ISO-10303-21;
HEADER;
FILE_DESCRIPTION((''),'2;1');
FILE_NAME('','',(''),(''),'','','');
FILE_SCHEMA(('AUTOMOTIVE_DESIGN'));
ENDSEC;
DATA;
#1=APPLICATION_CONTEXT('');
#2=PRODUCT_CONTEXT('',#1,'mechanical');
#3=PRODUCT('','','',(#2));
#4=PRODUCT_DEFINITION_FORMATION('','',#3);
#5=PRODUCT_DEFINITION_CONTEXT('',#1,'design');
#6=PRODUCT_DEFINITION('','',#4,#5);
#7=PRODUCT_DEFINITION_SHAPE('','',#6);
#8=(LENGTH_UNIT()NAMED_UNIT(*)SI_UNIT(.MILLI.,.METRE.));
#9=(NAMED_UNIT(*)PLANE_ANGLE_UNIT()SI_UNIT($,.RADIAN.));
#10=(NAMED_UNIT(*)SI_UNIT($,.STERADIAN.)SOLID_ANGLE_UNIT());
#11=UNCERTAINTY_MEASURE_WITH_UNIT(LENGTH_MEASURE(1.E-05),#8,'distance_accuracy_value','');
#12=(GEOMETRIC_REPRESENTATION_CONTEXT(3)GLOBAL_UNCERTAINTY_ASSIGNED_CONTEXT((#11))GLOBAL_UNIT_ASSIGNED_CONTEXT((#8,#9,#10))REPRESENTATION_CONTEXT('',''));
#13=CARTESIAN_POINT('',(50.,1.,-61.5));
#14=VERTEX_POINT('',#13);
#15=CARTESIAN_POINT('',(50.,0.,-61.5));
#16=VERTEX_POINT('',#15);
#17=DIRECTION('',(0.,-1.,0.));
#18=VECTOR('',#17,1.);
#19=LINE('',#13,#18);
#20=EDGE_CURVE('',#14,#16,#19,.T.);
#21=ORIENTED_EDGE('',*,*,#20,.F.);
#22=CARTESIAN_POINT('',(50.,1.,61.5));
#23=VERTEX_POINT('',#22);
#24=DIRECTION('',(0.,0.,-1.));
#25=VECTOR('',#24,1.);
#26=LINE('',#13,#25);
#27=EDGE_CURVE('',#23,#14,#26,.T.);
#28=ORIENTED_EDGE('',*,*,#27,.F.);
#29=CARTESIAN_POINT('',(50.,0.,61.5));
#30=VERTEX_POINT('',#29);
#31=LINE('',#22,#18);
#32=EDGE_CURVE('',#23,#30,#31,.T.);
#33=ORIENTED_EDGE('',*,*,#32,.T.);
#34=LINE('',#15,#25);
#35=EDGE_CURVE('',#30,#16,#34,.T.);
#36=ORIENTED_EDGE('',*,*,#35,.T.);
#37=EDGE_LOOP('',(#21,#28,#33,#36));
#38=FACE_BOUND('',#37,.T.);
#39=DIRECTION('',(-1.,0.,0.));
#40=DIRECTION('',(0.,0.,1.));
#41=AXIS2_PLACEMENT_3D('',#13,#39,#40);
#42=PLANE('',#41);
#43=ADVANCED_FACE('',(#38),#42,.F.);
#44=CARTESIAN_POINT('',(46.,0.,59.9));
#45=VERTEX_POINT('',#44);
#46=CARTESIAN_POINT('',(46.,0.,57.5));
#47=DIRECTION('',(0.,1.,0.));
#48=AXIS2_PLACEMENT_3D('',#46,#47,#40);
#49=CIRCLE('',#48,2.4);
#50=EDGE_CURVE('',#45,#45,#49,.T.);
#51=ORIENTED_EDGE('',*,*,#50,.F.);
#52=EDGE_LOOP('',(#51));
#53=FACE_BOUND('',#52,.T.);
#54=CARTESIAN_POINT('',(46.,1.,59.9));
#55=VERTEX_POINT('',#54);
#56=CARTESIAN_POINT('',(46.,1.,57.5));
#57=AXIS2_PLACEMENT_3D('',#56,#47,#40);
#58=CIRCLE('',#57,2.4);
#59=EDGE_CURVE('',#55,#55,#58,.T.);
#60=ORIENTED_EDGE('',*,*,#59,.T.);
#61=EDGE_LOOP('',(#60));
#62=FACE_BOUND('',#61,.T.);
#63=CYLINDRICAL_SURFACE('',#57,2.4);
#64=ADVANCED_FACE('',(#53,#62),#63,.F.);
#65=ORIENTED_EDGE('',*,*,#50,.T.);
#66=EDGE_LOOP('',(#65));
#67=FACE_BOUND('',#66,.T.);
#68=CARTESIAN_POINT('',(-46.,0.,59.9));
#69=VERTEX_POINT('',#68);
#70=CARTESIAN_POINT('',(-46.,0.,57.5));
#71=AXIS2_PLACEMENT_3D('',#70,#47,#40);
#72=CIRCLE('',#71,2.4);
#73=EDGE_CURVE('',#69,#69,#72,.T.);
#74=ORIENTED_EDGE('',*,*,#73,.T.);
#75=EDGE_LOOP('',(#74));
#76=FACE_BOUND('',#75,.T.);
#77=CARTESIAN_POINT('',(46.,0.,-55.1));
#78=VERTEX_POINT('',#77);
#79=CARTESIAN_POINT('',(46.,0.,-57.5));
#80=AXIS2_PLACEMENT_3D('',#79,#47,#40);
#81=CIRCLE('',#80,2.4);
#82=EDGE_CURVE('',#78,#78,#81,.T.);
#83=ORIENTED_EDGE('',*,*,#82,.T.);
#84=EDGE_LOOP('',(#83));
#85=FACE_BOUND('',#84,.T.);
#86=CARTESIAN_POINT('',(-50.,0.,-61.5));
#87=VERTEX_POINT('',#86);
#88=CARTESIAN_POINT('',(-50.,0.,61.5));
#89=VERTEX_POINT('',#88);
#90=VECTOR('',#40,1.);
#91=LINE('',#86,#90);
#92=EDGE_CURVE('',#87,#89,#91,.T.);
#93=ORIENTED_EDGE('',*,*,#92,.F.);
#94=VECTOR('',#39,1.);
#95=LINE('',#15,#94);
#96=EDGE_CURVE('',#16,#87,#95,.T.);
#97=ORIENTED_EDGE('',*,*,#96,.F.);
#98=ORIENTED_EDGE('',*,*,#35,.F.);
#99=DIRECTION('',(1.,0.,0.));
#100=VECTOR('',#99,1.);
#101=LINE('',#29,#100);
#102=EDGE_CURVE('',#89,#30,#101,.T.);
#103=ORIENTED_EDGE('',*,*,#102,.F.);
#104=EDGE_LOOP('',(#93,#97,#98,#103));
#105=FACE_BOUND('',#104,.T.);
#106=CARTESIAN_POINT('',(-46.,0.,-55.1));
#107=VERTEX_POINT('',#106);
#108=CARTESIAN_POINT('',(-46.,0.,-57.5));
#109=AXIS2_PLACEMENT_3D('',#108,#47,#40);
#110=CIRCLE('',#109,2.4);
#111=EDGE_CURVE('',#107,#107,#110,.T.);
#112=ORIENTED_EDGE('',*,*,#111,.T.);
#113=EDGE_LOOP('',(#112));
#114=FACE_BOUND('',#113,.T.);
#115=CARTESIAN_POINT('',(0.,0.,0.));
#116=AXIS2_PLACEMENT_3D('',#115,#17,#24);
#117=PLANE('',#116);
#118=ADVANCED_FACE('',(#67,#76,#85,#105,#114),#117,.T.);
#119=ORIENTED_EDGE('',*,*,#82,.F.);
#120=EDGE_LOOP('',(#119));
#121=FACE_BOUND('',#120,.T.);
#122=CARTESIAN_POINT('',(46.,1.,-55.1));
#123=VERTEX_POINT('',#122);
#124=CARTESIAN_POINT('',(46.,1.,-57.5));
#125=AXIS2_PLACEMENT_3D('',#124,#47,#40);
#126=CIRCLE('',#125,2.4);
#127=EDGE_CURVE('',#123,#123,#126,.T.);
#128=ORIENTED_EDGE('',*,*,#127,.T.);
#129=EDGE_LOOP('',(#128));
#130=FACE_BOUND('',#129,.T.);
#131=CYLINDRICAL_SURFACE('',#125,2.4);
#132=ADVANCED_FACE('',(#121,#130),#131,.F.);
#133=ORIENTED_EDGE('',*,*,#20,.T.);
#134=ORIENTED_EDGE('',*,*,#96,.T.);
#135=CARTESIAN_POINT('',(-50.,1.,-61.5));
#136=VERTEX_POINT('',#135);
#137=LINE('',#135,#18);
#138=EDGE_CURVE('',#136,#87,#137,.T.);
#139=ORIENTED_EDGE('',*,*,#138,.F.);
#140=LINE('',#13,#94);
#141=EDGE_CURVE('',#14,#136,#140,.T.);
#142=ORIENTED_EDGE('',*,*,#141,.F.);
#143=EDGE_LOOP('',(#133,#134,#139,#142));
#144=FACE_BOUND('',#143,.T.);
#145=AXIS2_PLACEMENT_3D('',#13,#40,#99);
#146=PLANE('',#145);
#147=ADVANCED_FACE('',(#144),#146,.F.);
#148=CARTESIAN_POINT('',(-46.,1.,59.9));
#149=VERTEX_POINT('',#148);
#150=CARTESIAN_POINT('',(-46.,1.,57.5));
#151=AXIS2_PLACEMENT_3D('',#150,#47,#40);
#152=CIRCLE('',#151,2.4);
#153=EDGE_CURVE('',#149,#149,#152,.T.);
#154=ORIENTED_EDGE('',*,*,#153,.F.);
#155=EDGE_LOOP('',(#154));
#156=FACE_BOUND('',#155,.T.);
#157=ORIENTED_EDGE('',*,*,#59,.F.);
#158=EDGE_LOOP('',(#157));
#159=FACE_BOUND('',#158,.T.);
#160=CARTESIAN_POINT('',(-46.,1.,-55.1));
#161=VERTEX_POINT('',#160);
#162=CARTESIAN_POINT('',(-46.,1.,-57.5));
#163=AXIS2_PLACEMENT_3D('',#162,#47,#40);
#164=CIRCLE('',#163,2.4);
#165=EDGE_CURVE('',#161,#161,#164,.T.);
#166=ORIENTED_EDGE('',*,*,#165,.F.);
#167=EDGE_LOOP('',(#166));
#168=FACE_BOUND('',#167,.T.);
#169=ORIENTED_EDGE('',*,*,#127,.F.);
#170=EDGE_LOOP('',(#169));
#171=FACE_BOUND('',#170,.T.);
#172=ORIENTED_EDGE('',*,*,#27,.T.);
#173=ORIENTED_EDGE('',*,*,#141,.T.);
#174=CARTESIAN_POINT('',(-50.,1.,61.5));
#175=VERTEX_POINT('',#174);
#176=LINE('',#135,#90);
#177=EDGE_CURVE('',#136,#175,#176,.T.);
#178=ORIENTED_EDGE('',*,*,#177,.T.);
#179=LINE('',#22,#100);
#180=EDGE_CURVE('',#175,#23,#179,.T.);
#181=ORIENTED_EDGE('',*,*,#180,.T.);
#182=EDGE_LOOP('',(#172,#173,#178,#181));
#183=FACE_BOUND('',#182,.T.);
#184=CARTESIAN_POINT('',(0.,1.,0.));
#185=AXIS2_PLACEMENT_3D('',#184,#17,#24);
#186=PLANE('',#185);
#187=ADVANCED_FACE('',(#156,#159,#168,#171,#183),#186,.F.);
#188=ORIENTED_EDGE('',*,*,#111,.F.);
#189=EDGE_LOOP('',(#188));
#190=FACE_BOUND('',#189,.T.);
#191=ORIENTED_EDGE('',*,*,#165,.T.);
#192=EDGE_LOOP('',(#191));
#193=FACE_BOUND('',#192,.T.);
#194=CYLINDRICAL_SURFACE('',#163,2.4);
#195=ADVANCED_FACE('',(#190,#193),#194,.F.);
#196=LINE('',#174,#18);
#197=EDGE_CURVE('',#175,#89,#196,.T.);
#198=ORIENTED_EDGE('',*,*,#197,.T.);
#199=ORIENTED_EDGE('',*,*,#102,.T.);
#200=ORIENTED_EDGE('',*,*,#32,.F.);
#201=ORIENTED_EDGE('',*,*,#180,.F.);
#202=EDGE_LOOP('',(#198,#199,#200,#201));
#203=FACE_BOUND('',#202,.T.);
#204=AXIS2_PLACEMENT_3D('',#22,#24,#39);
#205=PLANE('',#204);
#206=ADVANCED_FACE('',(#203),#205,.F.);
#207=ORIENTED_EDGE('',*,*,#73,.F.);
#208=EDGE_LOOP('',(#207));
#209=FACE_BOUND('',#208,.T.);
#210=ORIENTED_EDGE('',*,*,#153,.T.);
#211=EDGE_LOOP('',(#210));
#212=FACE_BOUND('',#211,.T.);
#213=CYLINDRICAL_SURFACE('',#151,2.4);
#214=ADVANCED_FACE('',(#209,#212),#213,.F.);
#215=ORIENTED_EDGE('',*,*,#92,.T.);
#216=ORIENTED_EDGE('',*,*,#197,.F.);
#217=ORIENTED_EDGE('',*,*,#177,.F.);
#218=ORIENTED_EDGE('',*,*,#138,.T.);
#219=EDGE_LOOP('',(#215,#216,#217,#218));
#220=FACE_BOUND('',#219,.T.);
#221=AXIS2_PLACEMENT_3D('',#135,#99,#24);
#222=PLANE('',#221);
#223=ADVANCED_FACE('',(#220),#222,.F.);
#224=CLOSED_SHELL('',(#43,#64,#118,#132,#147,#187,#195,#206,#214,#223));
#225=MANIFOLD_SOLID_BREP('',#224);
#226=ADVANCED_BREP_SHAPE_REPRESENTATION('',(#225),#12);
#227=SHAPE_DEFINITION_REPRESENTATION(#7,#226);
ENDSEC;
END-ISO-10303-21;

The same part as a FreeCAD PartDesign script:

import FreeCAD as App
import Part
import Sketcher


def add_polygon(sketch, points):
    """Adds a closed chain of lines whose ends are joined by coincident constraints."""
    first, n = sketch.GeometryCount, len(points)
    for a, b in zip(points, points[1:] + points[:1]):
        sketch.addGeometry(Part.LineSegment(App.Vector(*a, 0), App.Vector(*b, 0)), False)
    for i in range(n):
        sketch.addConstraint(Sketcher.Constraint("Coincident", first + i, 2, first + (i + 1) % n, 1))

doc = App.newDocument("Part")
body = doc.addObject("PartDesign::Body", "Body")

# Sketch on XZ plane
sketch1 = body.newObject("Sketcher::SketchObject", "Sketch")
sketch1.AttachmentSupport = (doc.getObject("XZ_Plane"), [""])
sketch1.MapMode = "FlatFace"
add_polygon(sketch1, [(-50, -61.5), (-50, 61.5), (50, 61.5), (50, -61.5)])  # lines 0-3
sketch1.addConstraint(Sketcher.Constraint("Vertical", 0))
sketch1.addConstraint(Sketcher.Constraint("Horizontal", 1))
sketch1.addConstraint(Sketcher.Constraint("Vertical", 2))
sketch1.addConstraint(Sketcher.Constraint("Horizontal", 3))
sketch1.addConstraint(Sketcher.Constraint("Symmetric", 0, 2, 2, 2, -1, 1))
sketch1.addConstraint(Sketcher.Constraint("DistanceX", 1, 1, 1, 2, 100.0))
sketch1.addConstraint(Sketcher.Constraint("DistanceY", 0, 1, 0, 2, 123.0))
pad1 = body.newObject("PartDesign::Pad", "Pad")
pad1.Profile = sketch1
pad1.Length = 1
pad1.Reversed = True

# Sketch on XZ plane
sketch2 = body.newObject("Sketcher::SketchObject", "Sketch001")
sketch2.AttachmentSupport = (doc.getObject("XZ_Plane"), [""])
sketch2.MapMode = "FlatFace"
sketch2.AttachmentOffset = App.Placement(App.Vector(0, 0, -1), App.Rotation())
sketch2.addGeometry(Part.Circle(App.Vector(-46, 57.5, 0), App.Vector(0, 0, 1), 2.4), False)
sketch2.addGeometry(Part.Circle(App.Vector(-46, -57.5, 0), App.Vector(0, 0, 1), 2.4), False)
sketch2.addGeometry(Part.Circle(App.Vector(46, -57.5, 0), App.Vector(0, 0, 1), 2.4), False)
sketch2.addGeometry(Part.Circle(App.Vector(46, 57.5, 0), App.Vector(0, 0, 1), 2.4), False)
sketch2.addConstraint(Sketcher.Constraint("Equal", 0, 1))
sketch2.addConstraint(Sketcher.Constraint("Equal", 1, 2))
sketch2.addConstraint(Sketcher.Constraint("Equal", 2, 3))
sketch2.addConstraint(Sketcher.Constraint("Symmetric", 0, 3, 2, 3, -1, 1))
sketch2.addConstraint(Sketcher.Constraint("Symmetric", 1, 3, 3, 3, -1, 1))
sketch2.addConstraint(Sketcher.Constraint("Symmetric", 1, 3, 2, 3, -2))
sketch2.addConstraint(Sketcher.Constraint("Diameter", 0, 4.8))
sketch2.addConstraint(Sketcher.Constraint("DistanceX", 0, 3, -1, 1, 46.0))
sketch2.addConstraint(Sketcher.Constraint("DistanceY", 1, 3, 0, 3, 115.0))
doc.recompute()
hole = body.newObject("PartDesign::Hole", "Hole")
hole.Profile = sketch2
hole.ThreadType = "None"
hole.Diameter = 4.8
hole.DepthType = "ThroughAll"
hole.Reversed = True

doc.recompute()
